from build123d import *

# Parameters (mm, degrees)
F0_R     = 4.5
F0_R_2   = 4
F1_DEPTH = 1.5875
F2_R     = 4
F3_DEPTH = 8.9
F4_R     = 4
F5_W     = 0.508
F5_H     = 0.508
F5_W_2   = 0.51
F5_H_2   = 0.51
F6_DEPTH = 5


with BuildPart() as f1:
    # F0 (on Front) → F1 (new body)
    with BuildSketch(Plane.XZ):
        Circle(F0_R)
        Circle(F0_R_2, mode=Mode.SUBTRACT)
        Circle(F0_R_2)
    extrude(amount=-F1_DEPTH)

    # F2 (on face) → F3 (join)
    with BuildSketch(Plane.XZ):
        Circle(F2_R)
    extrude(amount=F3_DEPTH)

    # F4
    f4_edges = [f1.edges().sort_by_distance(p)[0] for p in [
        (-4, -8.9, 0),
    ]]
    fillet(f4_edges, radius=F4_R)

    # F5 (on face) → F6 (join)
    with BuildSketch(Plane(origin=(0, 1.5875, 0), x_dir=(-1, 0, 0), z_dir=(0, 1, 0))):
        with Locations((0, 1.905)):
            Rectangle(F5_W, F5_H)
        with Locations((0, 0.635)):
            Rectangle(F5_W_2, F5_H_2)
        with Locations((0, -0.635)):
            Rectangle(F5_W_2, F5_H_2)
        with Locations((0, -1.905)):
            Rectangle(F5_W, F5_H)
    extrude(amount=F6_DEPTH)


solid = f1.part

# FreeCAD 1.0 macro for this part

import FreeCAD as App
import Part
import Sketcher

V = App.Vector
Q = App.Units.Quantity


def edges_at(feature, points):
    """Names of the edges that pass closest to the given points."""
    edges = feature.Shape.Edges
    near = lambda p: min(range(len(edges)), key=lambda i: edges[i].distToShape(Part.Vertex(*p))[0])
    return sorted({f"Edge{near(p) + 1}" for p in points})


def add_polygon(sketch, points):
    """Adds a closed chain of lines whose ends are joined by coincident constraints."""
    first, n = sketch.GeometryCount, len(points)
    for a, b in zip(points, points[1:] + points[:1]):
        sketch.addGeometry(Part.LineSegment(App.Vector(*a, 0), App.Vector(*b, 0)), False)
    for i in range(n):
        sketch.addConstraint(Sketcher.Constraint("Coincident", first + i, 2, first + (i + 1) % n, 1))

doc = App.newDocument("Part")
body = doc.addObject("PartDesign::Body", "Body")

# Sketch on XZ plane
sketch1 = body.newObject("Sketcher::SketchObject", "Sketch")
sketch1.AttachmentSupport = (doc.getObject("XZ_Plane"), [""])
sketch1.MapMode = "FlatFace"
sketch1.addGeometry(Part.Circle(V(0, 0, 0), V(0, 0, 1), 4.5), False)
sketch1.addConstraint(Sketcher.Constraint("Coincident", 0, 3, -1, 1))
sketch1.addConstraint(Sketcher.Constraint("Diameter", 0, Q("9 mm")))
pad1 = body.newObject("PartDesign::Pad", "Pad")
pad1.Profile = sketch1
pad1.Length = 1.5875
pad1.Reversed = True

# Sketch on XZ plane
sketch2 = body.newObject("Sketcher::SketchObject", "Sketch001")
sketch2.AttachmentSupport = (doc.getObject("XZ_Plane"), [""])
sketch2.MapMode = "FlatFace"
sketch2.addGeometry(Part.Circle(V(0, 0, 0), V(0, 0, 1), 4), False)
sketch2.addConstraint(Sketcher.Constraint("Coincident", 0, 3, -1, 1))
sketch2.addConstraint(Sketcher.Constraint("Diameter", 0, Q("8 mm")))
pad2 = body.newObject("PartDesign::Pad", "Pad001")
pad2.Profile = sketch2
pad2.Length = 8.9
doc.recompute()

fillet = body.newObject("PartDesign::Fillet", "Fillet")
fillet.Base = (pad2, edges_at(pad2, [(-4, -8.9, 0)]))
fillet.Radius = 4

# Sketch on XZ plane
sketch3 = body.newObject("Sketcher::SketchObject", "Sketch002")
sketch3.AttachmentSupport = (doc.getObject("XZ_Plane"), [""])
sketch3.MapMode = "FlatFace"
sketch3.AttachmentOffset = App.Placement(V(0, 0, -1.5875), App.Rotation())
add_polygon(sketch3, [(0.3, 2.2), (0.3, 1.7), (-0.3, 1.7), (-0.3, 2.2)])  # lines 0-3
add_polygon(sketch3, [(0.3, 0.9), (0.3, 0.4), (-0.3, 0.4), (-0.3, 0.9)])  # lines 4-7
add_polygon(sketch3, [(0.3, -0.4), (0.3, -0.9), (-0.3, -0.9), (-0.3, -0.4)])  # lines 8-11
add_polygon(sketch3, [(0.3, -1.7), (0.3, -2.2), (-0.3, -2.2), (-0.3, -1.7)])  # lines 12-15
sketch3.addConstraint(Sketcher.Constraint("Vertical", 0))
sketch3.addConstraint(Sketcher.Constraint("Horizontal", 1))
sketch3.addConstraint(Sketcher.Constraint("Vertical", 2))
sketch3.addConstraint(Sketcher.Constraint("Horizontal", 3))
sketch3.addConstraint(Sketcher.Constraint("Vertical", 4))
sketch3.addConstraint(Sketcher.Constraint("Horizontal", 5))
sketch3.addConstraint(Sketcher.Constraint("Vertical", 6))
sketch3.addConstraint(Sketcher.Constraint("Horizontal", 7))
sketch3.addConstraint(Sketcher.Constraint("Vertical", 8))
sketch3.addConstraint(Sketcher.Constraint("Horizontal", 9))
sketch3.addConstraint(Sketcher.Constraint("Vertical", 10))
sketch3.addConstraint(Sketcher.Constraint("Horizontal", 11))
sketch3.addConstraint(Sketcher.Constraint("Vertical", 12))
sketch3.addConstraint(Sketcher.Constraint("Horizontal", 13))
sketch3.addConstraint(Sketcher.Constraint("Vertical", 14))
sketch3.addConstraint(Sketcher.Constraint("Horizontal", 15))
sketch3.addConstraint(Sketcher.Constraint("Symmetric", 6, 2, 8, 2, -1, 1))
sketch3.addConstraint(Sketcher.Constraint("Symmetric", 4, 2, 10, 2, -1, 1))
sketch3.addConstraint(Sketcher.Constraint("Symmetric", 2, 2, 12, 2, -1, 1))
sketch3.addConstraint(Sketcher.Constraint("Symmetric", 0, 2, 14, 2, -1, 1))
sketch3.addConstraint(Sketcher.Constraint("Vertical", 7, 2, 8, 2))
sketch3.addConstraint(Sketcher.Constraint("Vertical", 3, 2, 12, 2))
sketch3.addConstraint(Sketcher.Constraint("Equal", 15, 0))
sketch3.addConstraint(Sketcher.Constraint("Equal", 11, 4))
sketch3.addConstraint(Sketcher.Constraint("DistanceX", 5, 2, 5, 1, Q("0.51 mm")))
sketch3.addConstraint(Sketcher.Constraint("DistanceX", 1, 2, 1, 1, Q("0.508 mm")))
sketch3.addConstraint(Sketcher.Constraint("DistanceY", -1, 1, 4, 2, Q("0.38 mm")))
sketch3.addConstraint(Sketcher.Constraint("DistanceY", -1, 1, 0, 2, Q("1.651 mm")))
pad3 = body.newObject("PartDesign::Pad", "Pad002")
pad3.Profile = sketch3
pad3.Length = 5
pad3.Reversed = True

doc.recompute()
